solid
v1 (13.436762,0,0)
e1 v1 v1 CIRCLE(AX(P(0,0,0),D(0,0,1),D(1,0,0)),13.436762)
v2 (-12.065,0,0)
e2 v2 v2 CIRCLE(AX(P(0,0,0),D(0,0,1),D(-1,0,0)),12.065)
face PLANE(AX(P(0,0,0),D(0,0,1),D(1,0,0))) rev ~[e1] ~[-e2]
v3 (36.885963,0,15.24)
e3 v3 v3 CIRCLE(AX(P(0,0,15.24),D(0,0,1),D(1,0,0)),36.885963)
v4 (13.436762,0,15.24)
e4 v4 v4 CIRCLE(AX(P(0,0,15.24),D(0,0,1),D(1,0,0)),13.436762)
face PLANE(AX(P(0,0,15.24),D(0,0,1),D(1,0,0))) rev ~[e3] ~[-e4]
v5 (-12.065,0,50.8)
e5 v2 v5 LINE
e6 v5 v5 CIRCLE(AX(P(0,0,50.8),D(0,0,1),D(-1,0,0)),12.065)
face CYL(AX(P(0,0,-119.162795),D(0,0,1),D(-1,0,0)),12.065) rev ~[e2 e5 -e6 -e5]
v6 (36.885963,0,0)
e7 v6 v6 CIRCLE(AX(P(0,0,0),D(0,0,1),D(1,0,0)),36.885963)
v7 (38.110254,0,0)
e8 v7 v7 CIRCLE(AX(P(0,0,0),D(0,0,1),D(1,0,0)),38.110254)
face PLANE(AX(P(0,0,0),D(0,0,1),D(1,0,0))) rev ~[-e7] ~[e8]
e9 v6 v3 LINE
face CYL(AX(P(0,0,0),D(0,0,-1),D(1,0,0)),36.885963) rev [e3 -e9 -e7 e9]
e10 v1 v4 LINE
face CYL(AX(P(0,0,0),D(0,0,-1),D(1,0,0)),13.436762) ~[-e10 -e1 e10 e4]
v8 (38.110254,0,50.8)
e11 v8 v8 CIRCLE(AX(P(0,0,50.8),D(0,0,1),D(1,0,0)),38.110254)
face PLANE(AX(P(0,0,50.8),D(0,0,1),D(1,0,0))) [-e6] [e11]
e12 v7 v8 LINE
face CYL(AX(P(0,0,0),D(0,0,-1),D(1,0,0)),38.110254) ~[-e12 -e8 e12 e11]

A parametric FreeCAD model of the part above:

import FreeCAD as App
import Part
import Sketcher
from FreeCAD import Vector
Q = App.Units.Quantity

doc = App.newDocument("Part")
body = doc.addObject("PartDesign::Body", "Body")

sketch1 = body.newObject("Sketcher::SketchObject", "Sketch")
sketch1.AttachmentSupport = (doc.getObject("XY_Plane"), [""])
sketch1.MapMode = "FlatFace"
sketch1.addGeometry(Part.Circle(Vector(0, 0, 0), Vector(0, 0, 1), 38), False)
sketch1.addConstraint(Sketcher.Constraint("Coincident", 0, 3, -1, 1))
sketch1.addConstraint(Sketcher.Constraint("Diameter", 0, Q("76.220508 mm")))
pad1 = body.newObject("PartDesign::Pad", "Pad")
pad1.Profile = sketch1
pad1.Length = Q("2 in")

sketch2 = body.newObject("Sketcher::SketchObject", "Sketch001")
sketch2.AttachmentSupport = (doc.getObject("XY_Plane"), [""])
sketch2.MapMode = "FlatFace"
sketch2.addGeometry(Part.Circle(Vector(0, 0, 0), Vector(0, 0, 1), 37), False)
sketch2.addGeometry(Part.Circle(Vector(0, 0, 0), Vector(0, 0, 1), 13), False)
sketch2.addConstraint(Sketcher.Constraint("Coincident", 0, 3, -1, 1))
sketch2.addConstraint(Sketcher.Constraint("Coincident", 1, 3, -1, 1))
sketch2.addConstraint(Sketcher.Constraint("Diameter", 0, Q("73.771926 mm")))
sketch2.addConstraint(Sketcher.Constraint("Diameter", 1, Q("26.873524 mm")))
pocket1 = body.newObject("PartDesign::Pocket", "Pocket")
pocket1.Profile = sketch2
pocket1.Length = Q("0.6 in")
pocket1.Reversed = True

sketch3 = body.newObject("Sketcher::SketchObject", "Sketch002")
sketch3.AttachmentSupport = (doc.getObject("XY_Plane"), [""])
sketch3.MapMode = "FlatFace"
sketch3.addGeometry(Part.Circle(Vector(0, 0, 0), Vector(0, 0, 1), 12), False)
sketch3.addConstraint(Sketcher.Constraint("Coincident", 0, 3, -1, 1))
sketch3.addConstraint(Sketcher.Constraint("Diameter", 0, Q("0.95 in")))
doc.recompute()
hole = body.newObject("PartDesign::Hole", "Hole")
hole.Profile = sketch3
hole.ThreadType = "None"
hole.Diameter = Q("0.95 in")
hole.DepthType = "ThroughAll"
hole.Reversed = True

doc.recompute()
